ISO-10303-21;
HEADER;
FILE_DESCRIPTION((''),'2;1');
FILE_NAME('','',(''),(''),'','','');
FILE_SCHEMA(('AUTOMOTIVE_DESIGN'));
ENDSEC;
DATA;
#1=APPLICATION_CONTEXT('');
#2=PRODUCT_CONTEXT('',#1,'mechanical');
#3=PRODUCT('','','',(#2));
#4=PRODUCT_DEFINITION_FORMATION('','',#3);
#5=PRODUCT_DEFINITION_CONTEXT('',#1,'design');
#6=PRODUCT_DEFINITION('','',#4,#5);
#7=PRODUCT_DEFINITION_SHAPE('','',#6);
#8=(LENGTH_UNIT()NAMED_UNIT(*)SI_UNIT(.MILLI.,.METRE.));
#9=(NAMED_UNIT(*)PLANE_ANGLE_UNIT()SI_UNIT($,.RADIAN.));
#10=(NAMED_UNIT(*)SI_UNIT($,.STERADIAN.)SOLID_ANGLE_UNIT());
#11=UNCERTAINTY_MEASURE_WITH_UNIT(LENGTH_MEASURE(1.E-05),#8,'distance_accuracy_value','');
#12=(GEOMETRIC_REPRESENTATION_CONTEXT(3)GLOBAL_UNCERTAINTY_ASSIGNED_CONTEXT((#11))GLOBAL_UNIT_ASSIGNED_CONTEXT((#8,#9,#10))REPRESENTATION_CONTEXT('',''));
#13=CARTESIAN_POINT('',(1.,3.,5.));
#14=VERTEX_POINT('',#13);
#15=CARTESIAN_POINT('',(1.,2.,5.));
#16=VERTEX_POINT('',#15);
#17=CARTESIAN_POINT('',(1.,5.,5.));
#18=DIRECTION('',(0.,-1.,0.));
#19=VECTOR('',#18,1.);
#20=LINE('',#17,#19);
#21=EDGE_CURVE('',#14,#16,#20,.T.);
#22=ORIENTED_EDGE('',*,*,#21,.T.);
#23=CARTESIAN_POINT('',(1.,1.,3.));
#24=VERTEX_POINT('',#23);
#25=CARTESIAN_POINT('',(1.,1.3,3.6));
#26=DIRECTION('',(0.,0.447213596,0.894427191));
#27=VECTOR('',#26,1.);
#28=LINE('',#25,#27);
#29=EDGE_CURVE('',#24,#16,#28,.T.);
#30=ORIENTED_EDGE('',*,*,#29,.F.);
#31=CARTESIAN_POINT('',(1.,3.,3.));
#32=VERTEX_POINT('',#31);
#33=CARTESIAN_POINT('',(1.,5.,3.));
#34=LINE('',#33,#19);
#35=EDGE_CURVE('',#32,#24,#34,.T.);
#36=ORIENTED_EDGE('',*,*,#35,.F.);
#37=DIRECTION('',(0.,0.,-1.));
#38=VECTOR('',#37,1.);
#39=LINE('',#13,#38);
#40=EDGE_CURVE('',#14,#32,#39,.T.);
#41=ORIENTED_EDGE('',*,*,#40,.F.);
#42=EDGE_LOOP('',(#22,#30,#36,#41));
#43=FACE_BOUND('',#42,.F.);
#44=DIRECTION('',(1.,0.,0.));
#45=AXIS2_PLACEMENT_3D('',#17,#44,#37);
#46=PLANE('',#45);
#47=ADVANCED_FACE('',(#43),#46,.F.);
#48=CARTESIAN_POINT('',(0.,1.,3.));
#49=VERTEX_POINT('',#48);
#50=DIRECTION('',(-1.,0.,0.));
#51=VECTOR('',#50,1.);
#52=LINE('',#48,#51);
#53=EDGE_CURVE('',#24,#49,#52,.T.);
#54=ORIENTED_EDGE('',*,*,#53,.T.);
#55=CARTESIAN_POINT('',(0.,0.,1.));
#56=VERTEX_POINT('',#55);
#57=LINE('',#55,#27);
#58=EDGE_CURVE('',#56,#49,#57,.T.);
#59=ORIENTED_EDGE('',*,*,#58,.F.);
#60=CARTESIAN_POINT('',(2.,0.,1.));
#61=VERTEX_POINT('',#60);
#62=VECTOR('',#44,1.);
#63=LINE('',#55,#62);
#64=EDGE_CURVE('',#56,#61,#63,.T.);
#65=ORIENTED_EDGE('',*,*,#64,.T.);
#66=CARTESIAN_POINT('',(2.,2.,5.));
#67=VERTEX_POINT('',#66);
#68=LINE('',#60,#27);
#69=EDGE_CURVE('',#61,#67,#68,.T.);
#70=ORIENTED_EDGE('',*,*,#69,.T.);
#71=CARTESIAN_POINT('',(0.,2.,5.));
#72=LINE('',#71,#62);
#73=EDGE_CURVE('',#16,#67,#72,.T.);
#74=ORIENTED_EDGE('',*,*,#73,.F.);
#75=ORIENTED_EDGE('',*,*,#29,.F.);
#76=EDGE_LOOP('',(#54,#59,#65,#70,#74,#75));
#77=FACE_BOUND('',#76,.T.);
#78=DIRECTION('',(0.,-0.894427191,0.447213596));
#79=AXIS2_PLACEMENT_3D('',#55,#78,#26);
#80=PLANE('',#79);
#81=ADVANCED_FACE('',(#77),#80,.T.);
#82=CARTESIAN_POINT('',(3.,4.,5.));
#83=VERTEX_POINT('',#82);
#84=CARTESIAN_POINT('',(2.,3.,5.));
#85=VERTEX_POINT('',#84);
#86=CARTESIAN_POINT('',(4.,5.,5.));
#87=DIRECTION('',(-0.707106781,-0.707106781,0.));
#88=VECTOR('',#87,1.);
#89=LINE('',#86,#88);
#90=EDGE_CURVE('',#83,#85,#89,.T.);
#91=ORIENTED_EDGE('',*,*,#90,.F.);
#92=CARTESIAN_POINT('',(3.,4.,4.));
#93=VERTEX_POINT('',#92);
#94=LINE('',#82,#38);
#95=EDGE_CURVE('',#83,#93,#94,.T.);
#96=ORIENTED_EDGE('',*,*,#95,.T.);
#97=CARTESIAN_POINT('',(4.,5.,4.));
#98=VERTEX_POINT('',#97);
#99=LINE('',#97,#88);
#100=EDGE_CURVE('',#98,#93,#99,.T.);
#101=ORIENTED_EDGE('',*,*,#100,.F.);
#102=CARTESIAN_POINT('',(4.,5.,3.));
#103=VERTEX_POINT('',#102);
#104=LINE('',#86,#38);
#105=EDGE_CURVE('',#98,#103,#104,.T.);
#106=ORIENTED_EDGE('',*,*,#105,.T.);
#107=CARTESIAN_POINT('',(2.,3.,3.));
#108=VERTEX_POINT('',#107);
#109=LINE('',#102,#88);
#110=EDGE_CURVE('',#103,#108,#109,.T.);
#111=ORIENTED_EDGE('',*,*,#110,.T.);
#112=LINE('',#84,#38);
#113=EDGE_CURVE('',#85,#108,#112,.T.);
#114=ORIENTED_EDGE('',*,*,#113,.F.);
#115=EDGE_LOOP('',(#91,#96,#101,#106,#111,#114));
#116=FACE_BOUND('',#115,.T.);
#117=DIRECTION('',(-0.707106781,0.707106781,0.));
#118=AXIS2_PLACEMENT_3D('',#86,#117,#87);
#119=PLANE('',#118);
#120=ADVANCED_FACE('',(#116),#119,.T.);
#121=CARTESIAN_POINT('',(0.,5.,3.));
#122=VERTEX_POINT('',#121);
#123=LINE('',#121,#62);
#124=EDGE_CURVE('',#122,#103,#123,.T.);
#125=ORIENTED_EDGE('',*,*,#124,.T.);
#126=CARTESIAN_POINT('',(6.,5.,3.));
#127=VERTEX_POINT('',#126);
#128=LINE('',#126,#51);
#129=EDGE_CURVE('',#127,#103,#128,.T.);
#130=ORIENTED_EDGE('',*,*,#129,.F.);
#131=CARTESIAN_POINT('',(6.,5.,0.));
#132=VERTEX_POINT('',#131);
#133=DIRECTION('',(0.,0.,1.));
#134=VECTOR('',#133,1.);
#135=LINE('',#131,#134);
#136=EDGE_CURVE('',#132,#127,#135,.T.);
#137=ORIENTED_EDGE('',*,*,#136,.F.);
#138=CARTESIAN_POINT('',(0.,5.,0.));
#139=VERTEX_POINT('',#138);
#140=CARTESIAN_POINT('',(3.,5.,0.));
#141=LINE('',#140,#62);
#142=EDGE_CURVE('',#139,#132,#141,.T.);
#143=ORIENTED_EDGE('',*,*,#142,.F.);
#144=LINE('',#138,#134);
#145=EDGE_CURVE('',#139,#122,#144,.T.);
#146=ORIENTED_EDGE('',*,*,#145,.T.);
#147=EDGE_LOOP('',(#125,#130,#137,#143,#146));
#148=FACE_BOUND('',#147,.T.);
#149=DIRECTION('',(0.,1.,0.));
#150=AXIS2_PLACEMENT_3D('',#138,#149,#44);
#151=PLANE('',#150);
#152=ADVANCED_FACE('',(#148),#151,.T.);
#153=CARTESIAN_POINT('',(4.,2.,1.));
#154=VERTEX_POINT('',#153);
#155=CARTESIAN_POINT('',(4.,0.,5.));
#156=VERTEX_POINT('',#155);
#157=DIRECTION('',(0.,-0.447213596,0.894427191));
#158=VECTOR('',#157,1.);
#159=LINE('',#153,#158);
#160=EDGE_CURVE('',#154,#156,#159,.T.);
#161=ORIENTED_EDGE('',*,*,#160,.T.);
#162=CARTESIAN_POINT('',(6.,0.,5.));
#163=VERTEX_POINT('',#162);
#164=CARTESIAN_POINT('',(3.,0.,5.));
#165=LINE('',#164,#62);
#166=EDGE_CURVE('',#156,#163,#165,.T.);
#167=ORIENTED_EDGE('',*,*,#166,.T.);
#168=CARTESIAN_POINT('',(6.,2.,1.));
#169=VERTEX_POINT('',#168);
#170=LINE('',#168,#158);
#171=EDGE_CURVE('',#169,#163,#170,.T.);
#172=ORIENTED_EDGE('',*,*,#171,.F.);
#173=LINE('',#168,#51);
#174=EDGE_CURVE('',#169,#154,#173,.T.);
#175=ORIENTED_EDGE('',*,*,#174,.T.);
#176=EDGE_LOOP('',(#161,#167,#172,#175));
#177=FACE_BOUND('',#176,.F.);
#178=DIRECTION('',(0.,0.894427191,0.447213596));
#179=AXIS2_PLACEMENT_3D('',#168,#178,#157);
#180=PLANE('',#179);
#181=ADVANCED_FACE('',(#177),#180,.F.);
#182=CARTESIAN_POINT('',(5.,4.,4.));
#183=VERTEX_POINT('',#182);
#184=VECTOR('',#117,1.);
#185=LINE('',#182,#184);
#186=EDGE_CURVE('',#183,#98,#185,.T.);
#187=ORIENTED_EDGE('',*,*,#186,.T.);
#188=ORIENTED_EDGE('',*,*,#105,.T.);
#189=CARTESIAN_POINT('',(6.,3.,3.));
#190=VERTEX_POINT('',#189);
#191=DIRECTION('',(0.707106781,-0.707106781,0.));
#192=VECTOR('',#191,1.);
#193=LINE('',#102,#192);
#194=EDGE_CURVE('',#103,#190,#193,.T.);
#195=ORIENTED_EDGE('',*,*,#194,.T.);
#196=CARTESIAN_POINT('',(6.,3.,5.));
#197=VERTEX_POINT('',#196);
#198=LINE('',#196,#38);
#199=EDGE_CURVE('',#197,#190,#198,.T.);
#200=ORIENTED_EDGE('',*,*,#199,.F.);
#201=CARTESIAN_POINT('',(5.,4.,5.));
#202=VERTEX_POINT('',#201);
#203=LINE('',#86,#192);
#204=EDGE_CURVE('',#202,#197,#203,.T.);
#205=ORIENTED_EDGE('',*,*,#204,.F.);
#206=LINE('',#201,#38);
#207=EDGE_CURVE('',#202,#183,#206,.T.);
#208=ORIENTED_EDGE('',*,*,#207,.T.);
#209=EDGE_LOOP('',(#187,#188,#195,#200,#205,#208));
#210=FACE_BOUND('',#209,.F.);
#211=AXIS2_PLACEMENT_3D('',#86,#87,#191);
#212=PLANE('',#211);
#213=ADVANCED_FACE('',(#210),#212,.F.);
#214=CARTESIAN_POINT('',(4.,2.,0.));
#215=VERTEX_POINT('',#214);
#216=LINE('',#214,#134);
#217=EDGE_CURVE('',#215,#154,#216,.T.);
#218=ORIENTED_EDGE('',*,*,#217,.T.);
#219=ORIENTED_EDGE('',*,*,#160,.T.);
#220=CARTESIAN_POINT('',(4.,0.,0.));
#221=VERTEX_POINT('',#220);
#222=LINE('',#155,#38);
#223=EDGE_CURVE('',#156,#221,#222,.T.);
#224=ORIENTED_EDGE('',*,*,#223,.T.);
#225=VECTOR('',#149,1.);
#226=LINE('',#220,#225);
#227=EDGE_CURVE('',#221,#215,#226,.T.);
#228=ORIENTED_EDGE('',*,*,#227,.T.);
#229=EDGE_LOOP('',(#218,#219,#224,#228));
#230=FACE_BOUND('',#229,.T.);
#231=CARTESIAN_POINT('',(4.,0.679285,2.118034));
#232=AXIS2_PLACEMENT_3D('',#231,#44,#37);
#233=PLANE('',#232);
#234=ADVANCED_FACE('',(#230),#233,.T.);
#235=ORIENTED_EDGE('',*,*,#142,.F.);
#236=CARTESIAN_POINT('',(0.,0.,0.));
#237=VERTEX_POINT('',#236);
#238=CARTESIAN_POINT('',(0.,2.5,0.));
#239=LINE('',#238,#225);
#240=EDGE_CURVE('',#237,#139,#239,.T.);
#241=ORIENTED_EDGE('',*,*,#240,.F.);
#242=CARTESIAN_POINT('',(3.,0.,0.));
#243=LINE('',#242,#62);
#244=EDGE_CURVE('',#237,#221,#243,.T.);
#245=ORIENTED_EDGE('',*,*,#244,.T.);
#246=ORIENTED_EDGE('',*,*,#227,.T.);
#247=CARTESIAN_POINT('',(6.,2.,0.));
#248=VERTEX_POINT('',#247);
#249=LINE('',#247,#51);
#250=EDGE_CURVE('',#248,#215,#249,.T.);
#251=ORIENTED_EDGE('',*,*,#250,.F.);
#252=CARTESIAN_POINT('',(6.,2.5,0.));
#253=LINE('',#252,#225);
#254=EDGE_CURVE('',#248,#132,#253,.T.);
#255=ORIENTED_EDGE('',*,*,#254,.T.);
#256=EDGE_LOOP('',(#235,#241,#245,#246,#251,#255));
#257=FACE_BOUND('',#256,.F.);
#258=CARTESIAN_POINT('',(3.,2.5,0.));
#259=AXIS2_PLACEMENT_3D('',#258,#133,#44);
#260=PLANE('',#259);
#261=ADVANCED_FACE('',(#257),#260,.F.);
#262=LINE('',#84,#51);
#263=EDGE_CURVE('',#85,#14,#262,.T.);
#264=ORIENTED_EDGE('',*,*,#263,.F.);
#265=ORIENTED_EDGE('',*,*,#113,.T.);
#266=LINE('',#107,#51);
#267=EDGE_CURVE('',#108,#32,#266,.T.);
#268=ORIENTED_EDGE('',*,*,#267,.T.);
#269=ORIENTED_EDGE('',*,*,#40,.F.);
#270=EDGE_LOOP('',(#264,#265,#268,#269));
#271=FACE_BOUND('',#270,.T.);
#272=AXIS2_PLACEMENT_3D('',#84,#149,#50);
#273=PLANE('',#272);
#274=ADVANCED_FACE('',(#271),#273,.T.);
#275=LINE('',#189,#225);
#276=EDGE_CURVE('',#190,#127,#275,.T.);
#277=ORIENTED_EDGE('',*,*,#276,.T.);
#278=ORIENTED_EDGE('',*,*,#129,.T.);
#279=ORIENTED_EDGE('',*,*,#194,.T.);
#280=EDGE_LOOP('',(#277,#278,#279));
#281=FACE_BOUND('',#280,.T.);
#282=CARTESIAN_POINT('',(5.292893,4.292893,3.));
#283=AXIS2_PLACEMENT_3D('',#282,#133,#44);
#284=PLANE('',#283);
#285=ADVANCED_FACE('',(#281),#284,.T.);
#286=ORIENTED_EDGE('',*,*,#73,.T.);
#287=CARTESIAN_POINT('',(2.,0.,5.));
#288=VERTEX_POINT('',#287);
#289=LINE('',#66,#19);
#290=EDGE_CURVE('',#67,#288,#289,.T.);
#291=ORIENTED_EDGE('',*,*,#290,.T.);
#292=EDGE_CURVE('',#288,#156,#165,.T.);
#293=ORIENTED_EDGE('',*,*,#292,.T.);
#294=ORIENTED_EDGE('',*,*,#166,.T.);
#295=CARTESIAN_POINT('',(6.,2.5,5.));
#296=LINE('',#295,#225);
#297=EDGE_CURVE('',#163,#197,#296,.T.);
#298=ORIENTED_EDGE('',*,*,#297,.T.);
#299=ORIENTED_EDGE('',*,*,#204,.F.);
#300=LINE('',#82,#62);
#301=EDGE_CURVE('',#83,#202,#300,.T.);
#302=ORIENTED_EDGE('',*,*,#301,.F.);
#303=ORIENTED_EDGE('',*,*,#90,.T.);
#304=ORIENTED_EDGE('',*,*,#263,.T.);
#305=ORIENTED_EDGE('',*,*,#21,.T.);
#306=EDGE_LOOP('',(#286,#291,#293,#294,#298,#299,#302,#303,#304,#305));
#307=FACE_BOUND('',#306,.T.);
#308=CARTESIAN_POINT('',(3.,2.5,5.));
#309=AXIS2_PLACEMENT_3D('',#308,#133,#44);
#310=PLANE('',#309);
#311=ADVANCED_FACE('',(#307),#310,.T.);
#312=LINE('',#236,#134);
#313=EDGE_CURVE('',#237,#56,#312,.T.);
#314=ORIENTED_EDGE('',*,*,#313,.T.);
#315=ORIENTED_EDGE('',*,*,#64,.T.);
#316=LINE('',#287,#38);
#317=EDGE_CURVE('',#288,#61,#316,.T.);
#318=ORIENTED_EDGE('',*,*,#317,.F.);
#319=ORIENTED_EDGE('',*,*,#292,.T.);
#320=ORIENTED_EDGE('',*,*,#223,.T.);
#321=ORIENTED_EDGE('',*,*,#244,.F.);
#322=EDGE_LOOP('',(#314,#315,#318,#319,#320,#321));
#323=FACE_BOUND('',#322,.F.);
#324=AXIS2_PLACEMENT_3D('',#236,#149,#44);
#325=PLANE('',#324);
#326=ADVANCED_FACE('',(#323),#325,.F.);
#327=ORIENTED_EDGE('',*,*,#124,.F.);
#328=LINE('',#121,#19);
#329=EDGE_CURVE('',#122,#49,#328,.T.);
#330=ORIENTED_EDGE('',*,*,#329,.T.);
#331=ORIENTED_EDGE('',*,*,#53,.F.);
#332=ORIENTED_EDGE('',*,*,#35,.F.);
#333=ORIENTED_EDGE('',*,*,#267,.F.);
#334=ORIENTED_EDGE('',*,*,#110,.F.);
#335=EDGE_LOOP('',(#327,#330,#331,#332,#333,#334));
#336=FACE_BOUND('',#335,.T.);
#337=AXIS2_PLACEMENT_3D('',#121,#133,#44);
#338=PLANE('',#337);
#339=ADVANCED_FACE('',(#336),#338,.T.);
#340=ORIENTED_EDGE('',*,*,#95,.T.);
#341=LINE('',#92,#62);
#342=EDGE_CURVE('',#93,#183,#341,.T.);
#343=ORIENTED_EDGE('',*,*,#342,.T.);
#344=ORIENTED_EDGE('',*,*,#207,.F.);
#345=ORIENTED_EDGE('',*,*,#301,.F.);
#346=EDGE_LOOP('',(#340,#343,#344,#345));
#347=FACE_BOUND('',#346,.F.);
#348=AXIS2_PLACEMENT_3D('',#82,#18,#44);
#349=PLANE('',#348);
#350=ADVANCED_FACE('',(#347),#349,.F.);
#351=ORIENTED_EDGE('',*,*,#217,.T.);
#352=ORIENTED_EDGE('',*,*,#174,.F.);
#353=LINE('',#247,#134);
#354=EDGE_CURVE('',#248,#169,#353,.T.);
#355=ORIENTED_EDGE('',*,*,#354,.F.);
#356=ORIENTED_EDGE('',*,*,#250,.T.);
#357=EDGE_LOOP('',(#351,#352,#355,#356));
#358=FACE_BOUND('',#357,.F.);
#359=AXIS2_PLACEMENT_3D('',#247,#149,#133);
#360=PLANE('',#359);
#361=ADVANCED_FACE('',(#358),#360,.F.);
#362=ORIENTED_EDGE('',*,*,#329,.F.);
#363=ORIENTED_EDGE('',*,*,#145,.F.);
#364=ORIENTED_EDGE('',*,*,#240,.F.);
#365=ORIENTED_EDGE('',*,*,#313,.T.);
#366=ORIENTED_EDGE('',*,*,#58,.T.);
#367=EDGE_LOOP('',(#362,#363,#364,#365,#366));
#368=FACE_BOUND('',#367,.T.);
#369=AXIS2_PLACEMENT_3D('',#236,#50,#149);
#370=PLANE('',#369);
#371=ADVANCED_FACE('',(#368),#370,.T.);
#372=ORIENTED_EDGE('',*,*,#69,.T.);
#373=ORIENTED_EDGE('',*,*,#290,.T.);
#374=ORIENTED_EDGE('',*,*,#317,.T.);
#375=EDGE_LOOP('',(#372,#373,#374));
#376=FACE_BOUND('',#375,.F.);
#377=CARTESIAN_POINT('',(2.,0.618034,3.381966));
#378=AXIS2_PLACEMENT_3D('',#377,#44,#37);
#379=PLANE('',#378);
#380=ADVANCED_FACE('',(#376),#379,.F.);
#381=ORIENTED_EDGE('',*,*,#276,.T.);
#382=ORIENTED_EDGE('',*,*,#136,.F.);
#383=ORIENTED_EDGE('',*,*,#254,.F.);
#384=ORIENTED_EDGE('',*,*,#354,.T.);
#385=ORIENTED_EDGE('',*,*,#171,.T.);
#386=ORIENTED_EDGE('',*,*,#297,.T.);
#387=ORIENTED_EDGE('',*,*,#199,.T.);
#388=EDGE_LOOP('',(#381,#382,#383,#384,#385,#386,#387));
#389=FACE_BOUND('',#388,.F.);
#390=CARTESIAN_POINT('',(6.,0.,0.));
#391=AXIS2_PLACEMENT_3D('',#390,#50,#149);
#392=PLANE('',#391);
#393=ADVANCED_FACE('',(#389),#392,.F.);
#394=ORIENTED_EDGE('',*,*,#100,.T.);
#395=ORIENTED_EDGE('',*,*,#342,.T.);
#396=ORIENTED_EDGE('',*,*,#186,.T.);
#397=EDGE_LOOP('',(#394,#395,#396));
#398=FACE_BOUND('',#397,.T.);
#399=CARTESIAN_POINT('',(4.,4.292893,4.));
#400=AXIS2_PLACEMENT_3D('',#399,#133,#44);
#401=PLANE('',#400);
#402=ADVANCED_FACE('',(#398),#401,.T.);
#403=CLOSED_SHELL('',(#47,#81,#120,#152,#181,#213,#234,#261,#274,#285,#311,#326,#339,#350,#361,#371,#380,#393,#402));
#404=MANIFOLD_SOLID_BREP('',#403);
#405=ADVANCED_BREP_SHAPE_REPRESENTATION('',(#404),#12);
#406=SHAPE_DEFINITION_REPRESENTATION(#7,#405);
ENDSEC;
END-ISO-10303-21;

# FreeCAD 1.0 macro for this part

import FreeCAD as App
import Part
import Sketcher
from FreeCAD import Vector
Q = App.Units.Quantity

doc = App.newDocument("Part")
body = doc.addObject("PartDesign::Body", "Body")

# Sketch on XY plane
sketch1 = body.newObject("Sketcher::SketchObject", "Sketch")
sketch1.AttachmentSupport = (doc.getObject("XY_Plane"), [""])
sketch1.MapMode = "FlatFace"
sketch1.addGeometry([
    Part.LineSegment(Vector(0, 5, 0), Vector(0, 0, 0)),
    Part.LineSegment(Vector(0, 0, 0), Vector(6, 0, 0)),
    Part.LineSegment(Vector(6, 0, 0), Vector(6, 5, 0)),
    Part.LineSegment(Vector(6, 5, 0), Vector(0, 5, 0)),
], False)
sketch1.addConstraint([
    Sketcher.Constraint("Coincident", 0, 2, 1, 1),
    Sketcher.Constraint("Coincident", 1, 2, 2, 1),
    Sketcher.Constraint("Coincident", 2, 2, 3, 1),
    Sketcher.Constraint("Coincident", 3, 2, 0, 1),
    Sketcher.Constraint("Vertical", 0),
    Sketcher.Constraint("Horizontal", 1),
    Sketcher.Constraint("Vertical", 2),
    Sketcher.Constraint("Horizontal", 3),
    Sketcher.Constraint("Coincident", 0, 2, -1, 1),
    Sketcher.Constraint("DistanceX", 1, 1, 1, 2, Q("6 mm")),
    Sketcher.Constraint("DistanceY", 0, 2, 0, 1, Q("5 mm")),
])
pad1 = body.newObject("PartDesign::Pad", "Pad")
pad1.Profile = sketch1
pad1.Length = 5

# Sketch on YZ plane
sketch2 = body.newObject("Sketcher::SketchObject", "Sketch001")
sketch2.AttachmentSupport = (doc.getObject("YZ_Plane"), [""])
sketch2.MapMode = "FlatFace"
sketch2.AttachmentOffset = App.Placement(Vector(0, 0, 6), App.Rotation())
sketch2.addGeometry([
    Part.LineSegment(Vector(2, 0, 0), Vector(2, 1, 0)),
    Part.LineSegment(Vector(2, 1, 0), Vector(0, 5, 0)),
    Part.LineSegment(Vector(0, 5, 0), Vector(0, 0, 0)),
    Part.LineSegment(Vector(0, 0, 0), Vector(2, 0, 0)),
], False)
sketch2.addConstraint([
    Sketcher.Constraint("Coincident", 0, 2, 1, 1),
    Sketcher.Constraint("Coincident", 1, 2, 2, 1),
    Sketcher.Constraint("Coincident", 2, 2, 3, 1),
    Sketcher.Constraint("Coincident", 3, 2, 0, 1),
    Sketcher.Constraint("Vertical", 0),
    Sketcher.Constraint("Vertical", 2),
    Sketcher.Constraint("Horizontal", 3),
    Sketcher.Constraint("Coincident", 2, 2, -1, 1),
    Sketcher.Constraint("DistanceX", 3, 1, 3, 2, Q("2 mm")),
    Sketcher.Constraint("DistanceY", 0, 1, 0, 2, Q("1 mm")),
    Sketcher.Constraint("DistanceY", 2, 2, 2, 1, Q("5 mm")),
])
pocket1 = body.newObject("PartDesign::Pocket", "Pocket")
pocket1.Profile = sketch2
pocket1.Length = 2

# Sketch on YZ plane
sketch3 = body.newObject("Sketcher::SketchObject", "Sketch002")
sketch3.AttachmentSupport = (doc.getObject("YZ_Plane"), [""])
sketch3.MapMode = "FlatFace"
sketch3.addGeometry([
    Part.LineSegment(Vector(2, 5, 0), Vector(0, 1, 0)),
    Part.LineSegment(Vector(0, 1, 0), Vector(0, 5, 0)),
    Part.LineSegment(Vector(0, 5, 0), Vector(2, 5, 0)),
], False)
sketch3.addConstraint([
    Sketcher.Constraint("Coincident", 0, 2, 1, 1),
    Sketcher.Constraint("Coincident", 1, 2, 2, 1),
    Sketcher.Constraint("Coincident", 2, 2, 0, 1),
    Sketcher.Constraint("Vertical", 1),
    Sketcher.Constraint("Horizontal", 2),
    Sketcher.Constraint("PointOnObject", 0, 2, -2),
    Sketcher.Constraint("DistanceX", 2, 1, 2, 2, Q("2 mm")),
    Sketcher.Constraint("DistanceY", 1, 1, 1, 2, Q("4 mm")),
    Sketcher.Constraint("DistanceY", -1, 1, 0, 2, Q("1 mm")),
])
pocket2 = body.newObject("PartDesign::Pocket", "Pocket001")
pocket2.Profile = sketch3
pocket2.Length = 2
pocket2.Reversed = True

# Sketch on XZ plane
sketch4 = body.newObject("Sketcher::SketchObject", "Sketch003")
sketch4.AttachmentSupport = (doc.getObject("XZ_Plane"), [""])
sketch4.MapMode = "FlatFace"
sketch4.AttachmentOffset = App.Placement(Vector(0, 0, -5), App.Rotation())
sketch4.addGeometry([
    Part.LineSegment(Vector(0, 3, 0), Vector(0, 5, 0)),
    Part.LineSegment(Vector(0, 5, 0), Vector(1, 5, 0)),
    Part.LineSegment(Vector(1, 5, 0), Vector(1, 3, 0)),
    Part.LineSegment(Vector(1, 3, 0), Vector(0, 3, 0)),
], False)
sketch4.addConstraint([
    Sketcher.Constraint("Coincident", 0, 2, 1, 1),
    Sketcher.Constraint("Coincident", 1, 2, 2, 1),
    Sketcher.Constraint("Coincident", 2, 2, 3, 1),
    Sketcher.Constraint("Coincident", 3, 2, 0, 1),
    Sketcher.Constraint("Vertical", 0),
    Sketcher.Constraint("Horizontal", 1),
    Sketcher.Constraint("Vertical", 2),
    Sketcher.Constraint("Horizontal", 3),
    Sketcher.Constraint("PointOnObject", 0, 2, -2),
    Sketcher.Constraint("DistanceX", 1, 1, 1, 2, Q("1 mm")),
    Sketcher.Constraint("DistanceY", 0, 1, 0, 2, Q("2 mm")),
    Sketcher.Constraint("DistanceY", -1, 1, 0, 2, Q("5 mm")),
])
pocket3 = body.newObject("PartDesign::Pocket", "Pocket002")
pocket3.Profile = sketch4
pocket3.Length = 5
pocket3.Reversed = True

# Sketch on XY plane
sketch5 = body.newObject("Sketcher::SketchObject", "Sketch004")
sketch5.AttachmentSupport = (doc.getObject("XY_Plane"), [""])
sketch5.MapMode = "FlatFace"
sketch5.AttachmentOffset = App.Placement(Vector(0, 0, 5), App.Rotation())
sketch5.addGeometry([
    Part.LineSegment(Vector(4, 5, 0), Vector(6, 3, 0)),
    Part.LineSegment(Vector(6, 3, 0), Vector(6, 5, 0)),
    Part.LineSegment(Vector(6, 5, 0), Vector(4, 5, 0)),
], False)
sketch5.addConstraint([
    Sketcher.Constraint("Coincident", 0, 2, 1, 1),
    Sketcher.Constraint("Coincident", 1, 2, 2, 1),
    Sketcher.Constraint("Coincident", 2, 2, 0, 1),
    Sketcher.Constraint("Vertical", 1),
    Sketcher.Constraint("Horizontal", 2),
    Sketcher.Constraint("Equal", 2, 1),
    Sketcher.Constraint("DistanceX", 2, 2, 2, 1, Q("2 mm")),
    Sketcher.Constraint("DistanceX", -1, 1, 0, 2, Q("6 mm")),
    Sketcher.Constraint("DistanceY", -1, 1, 0, 2, Q("3 mm")),
])
pocket4 = body.newObject("PartDesign::Pocket", "Pocket003")
pocket4.Profile = sketch5
pocket4.Length = 2

# Sketch on XY plane
sketch6 = body.newObject("Sketcher::SketchObject", "Sketch005")
sketch6.AttachmentSupport = (doc.getObject("XY_Plane"), [""])
sketch6.MapMode = "FlatFace"
sketch6.AttachmentOffset = App.Placement(Vector(0, 0, 5), App.Rotation())
sketch6.addGeometry([
    Part.LineSegment(Vector(2, 3, 0), Vector(4, 5, 0)),
    Part.LineSegment(Vector(4, 5, 0), Vector(1, 5, 0)),
    Part.LineSegment(Vector(1, 5, 0), Vector(1, 3, 0)),
    Part.LineSegment(Vector(1, 3, 0), Vector(2, 3, 0)),
], False)
sketch6.addConstraint([
    Sketcher.Constraint("Coincident", 0, 2, 1, 1),
    Sketcher.Constraint("Coincident", 1, 2, 2, 1),
    Sketcher.Constraint("Coincident", 2, 2, 3, 1),
    Sketcher.Constraint("Coincident", 3, 2, 0, 1),
    Sketcher.Constraint("Horizontal", 1),
    Sketcher.Constraint("Vertical", 2),
    Sketcher.Constraint("Horizontal", 3),
    Sketcher.Constraint("DistanceX", 1, 2, 1, 1, Q("3 mm")),
    Sketcher.Constraint("DistanceX", 3, 1, 3, 2, Q("1 mm")),
    Sketcher.Constraint("DistanceY", 2, 2, 2, 1, Q("2 mm")),
    Sketcher.Constraint("DistanceX", -1, 1, 0, 2, Q("4 mm")),
    Sketcher.Constraint("DistanceY", -1, 1, 0, 2, Q("5 mm")),
])
pocket5 = body.newObject("PartDesign::Pocket", "Pocket004")
pocket5.Profile = sketch6
pocket5.Length = 2

# Sketch on XY plane
sketch7 = body.newObject("Sketcher::SketchObject", "Sketch006")
sketch7.AttachmentSupport = (doc.getObject("XY_Plane"), [""])
sketch7.MapMode = "FlatFace"
sketch7.AttachmentOffset = App.Placement(Vector(0, 0, 5), App.Rotation())
sketch7.addGeometry([
    Part.LineSegment(Vector(3, 4, 0), Vector(5, 4, 0)),
    Part.LineSegment(Vector(5, 4, 0), Vector(4, 5, 0)),
    Part.LineSegment(Vector(4, 5, 0), Vector(3, 4, 0)),
], False)
sketch7.addConstraint([
    Sketcher.Constraint("Coincident", 0, 2, 1, 1),
    Sketcher.Constraint("Coincident", 1, 2, 2, 1),
    Sketcher.Constraint("Coincident", 2, 2, 0, 1),
    Sketcher.Constraint("Horizontal", 0),
    Sketcher.Constraint("Perpendicular", 1, 2),
    Sketcher.Constraint("Equal", 1, 2),
    Sketcher.Constraint("DistanceX", 0, 1, 0, 2, Q("2 mm")),
    Sketcher.Constraint("DistanceX", -1, 1, 0, 2, Q("5 mm")),
    Sketcher.Constraint("DistanceY", -1, 1, 0, 2, Q("4 mm")),
])
pocket6 = body.newObject("PartDesign::Pocket", "Pocket005")
pocket6.Profile = sketch7
pocket6.Length = 1

doc.recompute()
